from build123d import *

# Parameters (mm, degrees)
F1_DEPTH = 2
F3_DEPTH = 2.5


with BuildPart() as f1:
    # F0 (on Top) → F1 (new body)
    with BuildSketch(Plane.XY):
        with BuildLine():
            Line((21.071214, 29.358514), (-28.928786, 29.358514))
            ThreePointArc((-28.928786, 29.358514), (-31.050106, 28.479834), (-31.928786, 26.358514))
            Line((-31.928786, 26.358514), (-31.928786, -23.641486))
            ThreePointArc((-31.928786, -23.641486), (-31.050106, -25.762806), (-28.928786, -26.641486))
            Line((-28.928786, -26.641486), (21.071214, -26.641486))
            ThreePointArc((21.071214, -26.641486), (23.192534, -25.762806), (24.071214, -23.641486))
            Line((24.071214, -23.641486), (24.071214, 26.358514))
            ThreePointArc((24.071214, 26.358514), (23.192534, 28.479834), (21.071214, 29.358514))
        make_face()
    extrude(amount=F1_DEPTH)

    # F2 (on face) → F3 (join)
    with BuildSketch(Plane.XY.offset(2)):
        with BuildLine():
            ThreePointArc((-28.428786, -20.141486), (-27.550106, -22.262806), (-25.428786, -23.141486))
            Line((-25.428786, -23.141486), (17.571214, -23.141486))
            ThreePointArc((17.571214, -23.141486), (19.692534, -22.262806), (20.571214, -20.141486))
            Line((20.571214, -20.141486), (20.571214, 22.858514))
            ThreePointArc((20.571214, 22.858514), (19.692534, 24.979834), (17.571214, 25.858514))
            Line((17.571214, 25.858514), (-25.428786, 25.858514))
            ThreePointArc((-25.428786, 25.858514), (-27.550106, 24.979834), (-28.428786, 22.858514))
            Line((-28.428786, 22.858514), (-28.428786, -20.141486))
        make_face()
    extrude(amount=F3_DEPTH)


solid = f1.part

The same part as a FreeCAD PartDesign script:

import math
import FreeCAD as App
import Part
import Sketcher

V = App.Vector

doc = App.newDocument("Part")
body = doc.addObject("PartDesign::Body", "Body")

# Sketch on XY plane
sketch1 = body.newObject("Sketcher::SketchObject", "Sketch")
sketch1.AttachmentSupport = (doc.getObject("XY_Plane"), [""])
sketch1.MapMode = "FlatFace"
sketch1.addGeometry(Part.LineSegment(V(21.071214, 29.358514, 0), V(-28.928786, 29.358514, 0)), False)
sketch1.addGeometry(Part.ArcOfCircle(Part.Circle(V(-28.928785, 26.358513, 0), V(0, 0, 1), 3.000001), math.radians(90.000022), math.radians(179.999978)), False)
sketch1.addGeometry(Part.LineSegment(V(-31.928786, 26.358514, 0), V(-31.928786, -23.641486, 0)), False)
sketch1.addGeometry(Part.ArcOfCircle(Part.Circle(V(-28.928785, -23.641485, 0), V(0, 0, 1), 3.000001), math.radians(-179.999978), math.radians(-90.000022)), False)
sketch1.addGeometry(Part.LineSegment(V(-28.928786, -26.641486, 0), V(21.071214, -26.641486, 0)), False)
sketch1.addGeometry(Part.ArcOfCircle(Part.Circle(V(21.071213, -23.641485, 0), V(0, 0, 1), 3.000001), math.radians(-89.999978), math.radians(-0.000022)), False)
sketch1.addGeometry(Part.LineSegment(V(24.071214, -23.641486, 0), V(24.071214, 26.358514, 0)), False)
sketch1.addGeometry(Part.ArcOfCircle(Part.Circle(V(21.071213, 26.358513, 0), V(0, 0, 1), 3.000001), math.radians(0.000022), math.radians(89.999978)), False)
sketch1.addConstraint(Sketcher.Constraint("Tangent", 0, 2, 1, 1))
sketch1.addConstraint(Sketcher.Constraint("Tangent", 1, 2, 2, 1))
sketch1.addConstraint(Sketcher.Constraint("Tangent", 2, 2, 3, 1))
sketch1.addConstraint(Sketcher.Constraint("Tangent", 3, 2, 4, 1))
sketch1.addConstraint(Sketcher.Constraint("Tangent", 4, 2, 5, 1))
sketch1.addConstraint(Sketcher.Constraint("Tangent", 5, 2, 6, 1))
sketch1.addConstraint(Sketcher.Constraint("Tangent", 6, 2, 7, 1))
sketch1.addConstraint(Sketcher.Constraint("Tangent", 7, 2, 0, 1))
sketch1.addConstraint(Sketcher.Constraint("Horizontal", 0))
sketch1.addConstraint(Sketcher.Constraint("Vertical", 2))
sketch1.addConstraint(Sketcher.Constraint("Horizontal", 4))
sketch1.addConstraint(Sketcher.Constraint("Vertical", 6))
sketch1.addConstraint(Sketcher.Constraint("Equal", 1, 3))
sketch1.addConstraint(Sketcher.Constraint("Equal", 3, 5))
sketch1.addConstraint(Sketcher.Constraint("Equal", 5, 7))
sketch1.addConstraint(Sketcher.Constraint("Equal", 4, 2))
sketch1.addConstraint(Sketcher.Constraint("Radius", 1, 3.000001))
sketch1.addConstraint(Sketcher.Constraint("DistanceX", 0, 2, 0, 1, 50.0))
sketch1.addConstraint(Sketcher.Constraint("DistanceX", 1, 3, -1, 1, 28.928785))
sketch1.addConstraint(Sketcher.Constraint("DistanceY", -1, 1, 1, 3, 26.358513))
pad1 = body.newObject("PartDesign::Pad", "Pad")
pad1.Profile = sketch1
pad1.Length = 2

# Sketch on XY plane
sketch2 = body.newObject("Sketcher::SketchObject", "Sketch001")
sketch2.AttachmentSupport = (doc.getObject("XY_Plane"), [""])
sketch2.MapMode = "FlatFace"
sketch2.AttachmentOffset = App.Placement(V(0, 0, 2), App.Rotation())
sketch2.addGeometry(Part.ArcOfCircle(Part.Circle(V(-25.428785, -20.141485, 0), V(0, 0, 1), 3.000001), math.radians(-179.999978), math.radians(-90.000022)), False)
sketch2.addGeometry(Part.LineSegment(V(-25.428786, -23.141486, 0), V(17.571214, -23.141486, 0)), False)
sketch2.addGeometry(Part.ArcOfCircle(Part.Circle(V(17.571213, -20.141485, 0), V(0, 0, 1), 3.000001), math.radians(-89.999978), math.radians(-0.000022)), False)
sketch2.addGeometry(Part.LineSegment(V(20.571214, -20.141486, 0), V(20.571214, 22.858514, 0)), False)
sketch2.addGeometry(Part.ArcOfCircle(Part.Circle(V(17.571213, 22.858513, 0), V(0, 0, 1), 3.000001), math.radians(0.000022), math.radians(89.999978)), False)
sketch2.addGeometry(Part.LineSegment(V(17.571214, 25.858514, 0), V(-25.428786, 25.858514, 0)), False)
sketch2.addGeometry(Part.ArcOfCircle(Part.Circle(V(-25.428785, 22.858513, 0), V(0, 0, 1), 3.000001), math.radians(90.000022), math.radians(179.999978)), False)
sketch2.addGeometry(Part.LineSegment(V(-28.428786, 22.858514, 0), V(-28.428786, -20.141486, 0)), False)
sketch2.addConstraint(Sketcher.Constraint("Tangent", 0, 2, 1, 1))
sketch2.addConstraint(Sketcher.Constraint("Tangent", 1, 2, 2, 1))
sketch2.addConstraint(Sketcher.Constraint("Tangent", 2, 2, 3, 1))
sketch2.addConstraint(Sketcher.Constraint("Tangent", 3, 2, 4, 1))
sketch2.addConstraint(Sketcher.Constraint("Tangent", 4, 2, 5, 1))
sketch2.addConstraint(Sketcher.Constraint("Tangent", 5, 2, 6, 1))
sketch2.addConstraint(Sketcher.Constraint("Tangent", 6, 2, 7, 1))
sketch2.addConstraint(Sketcher.Constraint("Tangent", 7, 2, 0, 1))
sketch2.addConstraint(Sketcher.Constraint("Horizontal", 1))
sketch2.addConstraint(Sketcher.Constraint("Vertical", 3))
sketch2.addConstraint(Sketcher.Constraint("Horizontal", 5))
sketch2.addConstraint(Sketcher.Constraint("Vertical", 7))
sketch2.addConstraint(Sketcher.Constraint("Equal", 0, 2))
sketch2.addConstraint(Sketcher.Constraint("Equal", 2, 4))
sketch2.addConstraint(Sketcher.Constraint("Equal", 4, 6))
sketch2.addConstraint(Sketcher.Constraint("Equal", 5, 3))
sketch2.addConstraint(Sketcher.Constraint("Radius", 0, 3.000001))
sketch2.addConstraint(Sketcher.Constraint("DistanceX", 1, 1, 1, 2, 43.0))
sketch2.addConstraint(Sketcher.Constraint("DistanceX", 0, 3, -1, 1, 25.428785))
sketch2.addConstraint(Sketcher.Constraint("DistanceY", 0, 3, -1, 1, 20.141485))
pad2 = body.newObject("PartDesign::Pad", "Pad001")
pad2.Profile = sketch2
pad2.Length = 2.5

doc.recompute()
